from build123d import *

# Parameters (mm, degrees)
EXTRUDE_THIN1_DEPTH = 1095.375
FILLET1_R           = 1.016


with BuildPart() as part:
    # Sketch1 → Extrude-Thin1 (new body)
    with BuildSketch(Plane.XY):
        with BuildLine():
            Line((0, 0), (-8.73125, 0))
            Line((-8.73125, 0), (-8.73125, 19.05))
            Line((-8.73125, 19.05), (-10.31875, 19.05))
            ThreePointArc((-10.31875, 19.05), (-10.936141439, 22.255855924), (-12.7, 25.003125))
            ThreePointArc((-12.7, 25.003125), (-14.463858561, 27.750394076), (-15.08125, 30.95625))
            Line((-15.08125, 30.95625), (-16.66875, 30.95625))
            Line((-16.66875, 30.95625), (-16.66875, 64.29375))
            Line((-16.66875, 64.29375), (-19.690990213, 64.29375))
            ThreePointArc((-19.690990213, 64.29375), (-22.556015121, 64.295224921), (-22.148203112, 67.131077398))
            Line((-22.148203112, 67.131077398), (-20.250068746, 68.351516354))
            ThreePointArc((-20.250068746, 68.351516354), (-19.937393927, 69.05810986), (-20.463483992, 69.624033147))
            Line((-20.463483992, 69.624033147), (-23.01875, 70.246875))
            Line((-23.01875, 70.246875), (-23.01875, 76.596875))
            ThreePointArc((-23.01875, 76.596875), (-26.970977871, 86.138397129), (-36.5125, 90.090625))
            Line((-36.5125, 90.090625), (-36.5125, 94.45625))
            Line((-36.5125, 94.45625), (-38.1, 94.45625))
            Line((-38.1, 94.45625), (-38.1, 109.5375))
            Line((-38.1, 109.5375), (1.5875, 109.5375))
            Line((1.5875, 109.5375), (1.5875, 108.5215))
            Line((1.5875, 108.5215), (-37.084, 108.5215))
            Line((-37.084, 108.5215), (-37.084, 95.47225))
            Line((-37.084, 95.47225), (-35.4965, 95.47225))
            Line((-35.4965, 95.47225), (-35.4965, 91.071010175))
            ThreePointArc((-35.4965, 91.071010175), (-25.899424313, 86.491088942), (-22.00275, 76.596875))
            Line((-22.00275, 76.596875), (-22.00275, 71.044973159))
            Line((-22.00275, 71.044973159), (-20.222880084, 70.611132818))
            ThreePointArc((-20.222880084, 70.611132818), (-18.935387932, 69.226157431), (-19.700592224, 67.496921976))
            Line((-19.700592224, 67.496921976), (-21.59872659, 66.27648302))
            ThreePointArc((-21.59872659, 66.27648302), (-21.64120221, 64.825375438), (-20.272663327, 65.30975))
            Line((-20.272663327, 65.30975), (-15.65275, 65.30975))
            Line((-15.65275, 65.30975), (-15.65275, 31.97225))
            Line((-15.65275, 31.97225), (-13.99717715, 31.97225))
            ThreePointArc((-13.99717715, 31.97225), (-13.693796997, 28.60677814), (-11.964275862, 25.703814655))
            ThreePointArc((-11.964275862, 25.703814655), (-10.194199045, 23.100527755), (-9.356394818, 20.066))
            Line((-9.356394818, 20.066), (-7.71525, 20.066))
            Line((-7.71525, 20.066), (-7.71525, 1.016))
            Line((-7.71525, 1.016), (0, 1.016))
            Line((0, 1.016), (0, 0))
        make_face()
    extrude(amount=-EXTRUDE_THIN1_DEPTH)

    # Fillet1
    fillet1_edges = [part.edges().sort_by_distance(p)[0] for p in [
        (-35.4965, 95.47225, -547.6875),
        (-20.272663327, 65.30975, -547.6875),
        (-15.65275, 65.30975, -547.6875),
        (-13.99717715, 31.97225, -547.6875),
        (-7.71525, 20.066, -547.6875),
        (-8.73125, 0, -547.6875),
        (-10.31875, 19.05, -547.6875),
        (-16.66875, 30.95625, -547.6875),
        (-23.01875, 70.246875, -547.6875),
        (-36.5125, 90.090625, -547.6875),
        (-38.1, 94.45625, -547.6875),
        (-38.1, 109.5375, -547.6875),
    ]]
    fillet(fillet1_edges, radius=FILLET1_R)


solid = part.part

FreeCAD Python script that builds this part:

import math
import FreeCAD as App
import Part
import Sketcher
from FreeCAD import Vector
Q = App.Units.Quantity


def edges_at(feature, points):
    """Names of the edges that pass closest to the given points."""
    edges = feature.Shape.Edges
    near = lambda p: min(range(len(edges)), key=lambda i: edges[i].distToShape(Part.Vertex(*p))[0])
    return sorted({f"Edge{near(p) + 1}" for p in points})

doc = App.newDocument("Part")
params = doc.addObject("Spreadsheet::Sheet", "Params")
for row, (alias, value) in enumerate([
    ("sketch1_radius", "0.53125 in"),
    ("sketch1_height", "0.04 in"),
    ("sketch1_height2", "0.75 in"),
    ("sketch1_height3", "0.25 in"),
    ("sketch1_width", "0.34375 in"),
    ("pad1_length", "43.125 in"),
    ("fillet_radius", "0.04 in"),
], start=1):
    params.set(f"A{row}", alias)
    params.set(f"B{row}", "=" + value)
    params.setAlias(f"B{row}", alias)

body = doc.addObject("PartDesign::Body", "Body")

sketch1 = doc.addObject("Sketcher::SketchObject", "Sketch")
body.addObject(sketch1)
sketch1.AttachmentSupport = (doc.XY_Plane, [""])
sketch1.MapMode = "FlatFace"
sketch1.addGeometry(Part.LineSegment(Vector(-8.7, 0, 0), Vector(0, 0, 0)), False)
sketch1.addGeometry(Part.LineSegment(Vector(0, 0, 0), Vector(0, 1, 0)), False)
sketch1.addGeometry(Part.LineSegment(Vector(0, 1, 0), Vector(-7.7, 1, 0)), False)
sketch1.addGeometry(Part.LineSegment(Vector(-7.7, 1, 0), Vector(-7.7, 20.1, 0)), False)
sketch1.addGeometry(Part.LineSegment(Vector(-7.7, 20.1, 0), Vector(-9.4, 20.1, 0)), False)
sketch1.addGeometry(Part.ArcOfCircle(Part.Circle(Vector(-19, 19.1, 0), Vector(0, 0, 1), 9.6), math.radians(6), math.radians(44)), False)
sketch1.addGeometry(Part.ArcOfCircle(Part.Circle(Vector(-6.4, 31, 0), Vector(0, 0, 1), 7.6), math.radians(172), math.radians(224)), False)
sketch1.addGeometry(Part.LineSegment(Vector(-14, 32, 0), Vector(-15.7, 32, 0)), False)
sketch1.addGeometry(Part.LineSegment(Vector(-15.7, 32, 0), Vector(-15.7, 65.3, 0)), False)
sketch1.addGeometry(Part.LineSegment(Vector(-15.7, 65.3, 0), Vector(-20.3, 65.3, 0)), False)
sketch1.addGeometry(Part.ArcOfCircle(Part.Circle(Vector(-21.1, 65.5, 0), Vector(0, 0, 1), 0.9), math.radians(123), math.radians(345)), False)
sketch1.addGeometry(Part.LineSegment(Vector(-21.6, 66.3, 0), Vector(-19.7, 67.5, 0)), False)
sketch1.addGeometry(Part.ArcOfCircle(Part.Circle(Vector(-20.6, 68.9, 0), Vector(0, 0, 1), 1.7), math.radians(-57), math.radians(76)), False)
sketch1.addGeometry(Part.LineSegment(Vector(-20.2, 70.6, 0), Vector(-22, 71, 0)), False)
sketch1.addGeometry(Part.LineSegment(Vector(-22, 71, 0), Vector(-22, 76.6, 0)), False)
sketch1.addGeometry(Part.ArcOfCircle(Part.Circle(Vector(-36.5, 76.6, 0), Vector(0, 0, 1), 14.5), math.radians(0), math.radians(86)), False)
sketch1.addGeometry(Part.LineSegment(Vector(-35.5, 91.1, 0), Vector(-35.5, 95.5, 0)), False)
sketch1.addGeometry(Part.LineSegment(Vector(-35.5, 95.5, 0), Vector(-37.1, 95.5, 0)), False)
sketch1.addGeometry(Part.LineSegment(Vector(-37.1, 95.5, 0), Vector(-37.1, 108.5, 0)), False)
sketch1.addGeometry(Part.LineSegment(Vector(-37.1, 108.5, 0), Vector(1.6, 108.5, 0)), False)
sketch1.addGeometry(Part.LineSegment(Vector(1.6, 108.5, 0), Vector(1.6, 109.5, 0)), False)
sketch1.addGeometry(Part.LineSegment(Vector(1.6, 109.5, 0), Vector(-38.1, 109.5, 0)), False)
sketch1.addGeometry(Part.LineSegment(Vector(-38.1, 109.5, 0), Vector(-38.1, 94.5, 0)), False)
sketch1.addGeometry(Part.LineSegment(Vector(-38.1, 94.5, 0), Vector(-36.5, 94.5, 0)), False)
sketch1.addGeometry(Part.LineSegment(Vector(-36.5, 94.5, 0), Vector(-36.5, 90.1, 0)), False)
sketch1.addGeometry(Part.ArcOfCircle(Part.Circle(Vector(-36.5, 76.6, 0), Vector(0, 0, 1), 13.5), math.radians(0), math.radians(90)), False)
sketch1.addGeometry(Part.LineSegment(Vector(-23, 76.6, 0), Vector(-23, 70.2, 0)), False)
sketch1.addGeometry(Part.LineSegment(Vector(-23, 70.2, 0), Vector(-20.5, 69.6, 0)), False)
sketch1.addGeometry(Part.ArcOfCircle(Part.Circle(Vector(-20.6, 68.9, 0), Vector(0, 0, 1), 0.7), math.radians(-57), math.radians(76)), False)
sketch1.addGeometry(Part.LineSegment(Vector(-20.3, 68.4, 0), Vector(-22.1, 67.1, 0)), False)
sketch1.addGeometry(Part.ArcOfCircle(Part.Circle(Vector(-21.1, 65.5, 0), Vector(0, 0, 1), 1.9), math.radians(123), math.radians(319)), False)
sketch1.addGeometry(Part.LineSegment(Vector(-19.7, 64.3, 0), Vector(-16.7, 64.3, 0)), False)
sketch1.addGeometry(Part.LineSegment(Vector(-16.7, 64.3, 0), Vector(-16.7, 31, 0)), False)
sketch1.addGeometry(Part.LineSegment(Vector(-16.7, 31, 0), Vector(-15.1, 31, 0)), False)
sketch1.addGeometry(Part.ArcOfCircle(Part.Circle(Vector(-6.4, 31, 0), Vector(0, 0, 1), 8.6), math.radians(180), math.radians(224)), False)
sketch1.addGeometry(Part.ArcOfCircle(Part.Circle(Vector(-19, 19.1, 0), Vector(0, 0, 1), 8.6), math.radians(0), math.radians(44)), False)
sketch1.addGeometry(Part.LineSegment(Vector(-10.3, 19.1, 0), Vector(-8.7, 19.1, 0)), False)
sketch1.addGeometry(Part.LineSegment(Vector(-8.7, 19.1, 0), Vector(-8.7, 0, 0)), False)
sketch1.addConstraint(Sketcher.Constraint("Coincident", 0, 2, 1, 1))
sketch1.addConstraint(Sketcher.Constraint("Coincident", 1, 2, 2, 1))
sketch1.addConstraint(Sketcher.Constraint("Coincident", 2, 2, 3, 1))
sketch1.addConstraint(Sketcher.Constraint("Coincident", 3, 2, 4, 1))
sketch1.addConstraint(Sketcher.Constraint("Coincident", 4, 2, 5, 1))
sketch1.addConstraint(Sketcher.Constraint("Tangent", 5, 2, 6, 2))
sketch1.addConstraint(Sketcher.Constraint("Coincident", 6, 1, 7, 1))
sketch1.addConstraint(Sketcher.Constraint("Coincident", 7, 2, 8, 1))
sketch1.addConstraint(Sketcher.Constraint("Coincident", 8, 2, 9, 1))
sketch1.addConstraint(Sketcher.Constraint("Coincident", 9, 2, 10, 2))
sketch1.addConstraint(Sketcher.Constraint("Tangent", 10, 1, 11, 1))
sketch1.addConstraint(Sketcher.Constraint("Tangent", 11, 2, 12, 1))
sketch1.addConstraint(Sketcher.Constraint("Tangent", 12, 2, 13, 1))
sketch1.addConstraint(Sketcher.Constraint("Coincident", 13, 2, 14, 1))
sketch1.addConstraint(Sketcher.Constraint("Tangent", 14, 2, 15, 1))
sketch1.addConstraint(Sketcher.Constraint("Coincident", 15, 2, 16, 1))
sketch1.addConstraint(Sketcher.Constraint("Coincident", 16, 2, 17, 1))
sketch1.addConstraint(Sketcher.Constraint("Coincident", 17, 2, 18, 1))
sketch1.addConstraint(Sketcher.Constraint("Coincident", 18, 2, 19, 1))
sketch1.addConstraint(Sketcher.Constraint("Coincident", 19, 2, 20, 1))
sketch1.addConstraint(Sketcher.Constraint("Coincident", 20, 2, 21, 1))
sketch1.addConstraint(Sketcher.Constraint("Coincident", 21, 2, 22, 1))
sketch1.addConstraint(Sketcher.Constraint("Coincident", 22, 2, 23, 1))
sketch1.addConstraint(Sketcher.Constraint("Coincident", 23, 2, 24, 1))
sketch1.addConstraint(Sketcher.Constraint("Coincident", 24, 2, 25, 2))
sketch1.addConstraint(Sketcher.Constraint("Tangent", 25, 1, 26, 1))
sketch1.addConstraint(Sketcher.Constraint("Coincident", 26, 2, 27, 1))
sketch1.addConstraint(Sketcher.Constraint("Tangent", 27, 2, 28, 2))
sketch1.addConstraint(Sketcher.Constraint("Tangent", 28, 1, 29, 1))
sketch1.addConstraint(Sketcher.Constraint("Tangent", 29, 2, 30, 1))
sketch1.addConstraint(Sketcher.Constraint("Coincident", 30, 2, 31, 1))
sketch1.addConstraint(Sketcher.Constraint("Coincident", 31, 2, 32, 1))
sketch1.addConstraint(Sketcher.Constraint("Coincident", 32, 2, 33, 1))
sketch1.addConstraint(Sketcher.Constraint("Coincident", 33, 2, 34, 1))
sketch1.addConstraint(Sketcher.Constraint("Tangent", 34, 2, 35, 2))
sketch1.addConstraint(Sketcher.Constraint("Coincident", 35, 1, 36, 1))
sketch1.addConstraint(Sketcher.Constraint("Coincident", 36, 2, 37, 1))
sketch1.addConstraint(Sketcher.Constraint("Coincident", 37, 2, 0, 1))
sketch1.addConstraint(Sketcher.Constraint("Horizontal", 0))
sketch1.addConstraint(Sketcher.Constraint("Vertical", 1))
sketch1.addConstraint(Sketcher.Constraint("Horizontal", 2))
sketch1.addConstraint(Sketcher.Constraint("Vertical", 3))
sketch1.addConstraint(Sketcher.Constraint("Horizontal", 4))
sketch1.addConstraint(Sketcher.Constraint("Horizontal", 7))
sketch1.addConstraint(Sketcher.Constraint("Vertical", 8))
sketch1.addConstraint(Sketcher.Constraint("Horizontal", 9))
sketch1.addConstraint(Sketcher.Constraint("Vertical", 14))
sketch1.addConstraint(Sketcher.Constraint("Vertical", 16))
sketch1.addConstraint(Sketcher.Constraint("Horizontal", 17))
sketch1.addConstraint(Sketcher.Constraint("Vertical", 18))
sketch1.addConstraint(Sketcher.Constraint("Horizontal", 19))
sketch1.addConstraint(Sketcher.Constraint("Vertical", 20))
sketch1.addConstraint(Sketcher.Constraint("Horizontal", 21))
sketch1.addConstraint(Sketcher.Constraint("Vertical", 22))
sketch1.addConstraint(Sketcher.Constraint("Horizontal", 23))
sketch1.addConstraint(Sketcher.Constraint("Vertical", 24))
sketch1.addConstraint(Sketcher.Constraint("Vertical", 26))
sketch1.addConstraint(Sketcher.Constraint("Horizontal", 31))
sketch1.addConstraint(Sketcher.Constraint("Vertical", 32))
sketch1.addConstraint(Sketcher.Constraint("Horizontal", 33))
sketch1.addConstraint(Sketcher.Constraint("Horizontal", 36))
sketch1.addConstraint(Sketcher.Constraint("Vertical", 37))
sketch1.addConstraint(Sketcher.Constraint("Coincident", 0, 2, -1, 1))
sketch1.addConstraint(Sketcher.Constraint("Coincident", 25, 3, 15, 3))
sketch1.addConstraint(Sketcher.Constraint("Coincident", 28, 3, 12, 3))
sketch1.addConstraint(Sketcher.Constraint("Coincident", 30, 3, 10, 3))
sketch1.addConstraint(Sketcher.Constraint("Coincident", 34, 3, 6, 3))
sketch1.addConstraint(Sketcher.Constraint("Coincident", 35, 3, 5, 3))
sketch1.addConstraint(Sketcher.Constraint("Equal", 34, 35))
sketch1.addConstraint(Sketcher.Constraint("Parallel", 13, 27))
sketch1.addConstraint(Sketcher.Constraint("Parallel", 11, 29))
sketch1.addConstraint(Sketcher.Constraint("Horizontal", 34, 3, 32, 2))
sketch1.addConstraint(Sketcher.Constraint("Horizontal", 5, 3, 35, 1))
sketch1.addConstraint(Sketcher.Constraint("Vertical", 25, 3, 23, 2))
sketch1.addConstraint(Sketcher.Constraint("Equal", 17, 23))
sketch1.addConstraint(Sketcher.Constraint("Equal", 23, 33))
sketch1.addConstraint(Sketcher.Constraint("Equal", 33, 36))
sketch1.addConstraint(Sketcher.Constraint("Equal", 1, 20))
sketch1.addConstraint(Sketcher.Constraint("Equal", 8, 32))
sketch1.addConstraint(Sketcher.Constraint("Equal", 3, 37))
sketch1.addConstraint(Sketcher.Constraint("Radius", 25, Q("0.53125 in")))
sketch1.addConstraint(Sketcher.Constraint("DistanceY", 1, 1, 1, 2, Q("0.04 in")))
sketch1.addConstraint(Sketcher.Constraint("DistanceY", 3, 1, 3, 2, Q("0.75 in")))
sketch1.addConstraint(Sketcher.Constraint("DistanceY", 26, 2, 26, 1, Q("0.25 in")))
sketch1.addConstraint(Sketcher.Constraint("DistanceX", 21, 2, -1, 1, Q("1.5 in")))
sketch1.addConstraint(Sketcher.Constraint("DistanceX", 34, 2, -1, 1, Q("0.5 in")))
sketch1.addConstraint(Sketcher.Constraint("DistanceX", 0, 1, 0, 2, Q("0.34375 in")))
sketch1.addConstraint(Sketcher.Constraint("DistanceX", 17, 2, 17, 1, Q("0.0625 in")))
sketch1.addConstraint(Sketcher.Constraint("DistanceX", 21, 2, 21, 1, Q("1.5625 in")))
sketch1.addConstraint(Sketcher.Constraint("DistanceY", 8, 1, 8, 2, Q("1.3125 in")))
sketch1.addConstraint(Sketcher.Constraint("DistanceY", 22, 2, 22, 1, Q("0.59375 in")))
sketch1.addConstraint(Sketcher.Constraint("DistanceY", 24, 2, 24, 1, Q("0.171875 in")))
sketch1.addConstraint(Sketcher.Constraint("DistanceX", 17, 2, -1, 1, Q("1.46 in")))
sketch1.addConstraint(Sketcher.Constraint("DistanceY", 34, 3, 6, 1, Q("0.04 in")))
sketch1.addConstraint(Sketcher.Constraint("DistanceY", 22, 2, 17, 2, Q("0.04 in")))
sketch1.addConstraint(Sketcher.Constraint("DistanceX", 25, 1, 14, 2, Q("0.04 in")))
sketch1.addConstraint(Sketcher.Constraint("DistanceX", 31, 2, 8, 2, Q("0.04 in")))
sketch1.addConstraint(Sketcher.Constraint("DistanceX", 36, 2, 3, 2, Q("0.04 in")))
sketch1.addConstraint(Sketcher.Constraint("DistanceY", -1, 1, 6, 3, Q("1.21875 in")))
sketch1.addConstraint(Sketcher.Constraint("DistanceY", -1, 1, 15, 3, Q("3.015625 in")))
sketch1.addConstraint(Sketcher.Constraint("Radius", 5, Q("9.648031 mm")))
sketch1.addConstraint(Sketcher.Constraint("DistanceY", 14, 1, 14, 2, Q("5.551902 mm")))
sketch1.addConstraint(Sketcher.Constraint("Radius", 10, Q("0.879887 mm")))
sketch1.addConstraint(Sketcher.Constraint("Radius", 12, Q("1.718004 mm")))
sketch1.addConstraint(Sketcher.Constraint("Radius", 28, Q("0.702004 mm")))
sketch1.addConstraint(Sketcher.Constraint("DistanceX", 31, 1, 31, 2, Q("3.02224 mm")))
sketch1.addConstraint(Sketcher.Constraint("DistanceX", 10, 3, 9, 2, Q("0.8502 mm")))
sketch1.addConstraint(Sketcher.Constraint("DistanceY", 10, 3, 29, 2, Q("1.594699 mm")))
sketch1.setExpression("Constraints[80]", "Params.sketch1_radius")
sketch1.setExpression("Constraints[81]", "Params.sketch1_height")
sketch1.setExpression("Constraints[82]", "Params.sketch1_height2")
sketch1.setExpression("Constraints[83]", "Params.sketch1_height3")
sketch1.setExpression("Constraints[86]", "Params.sketch1_width")
pad1 = doc.addObject("PartDesign::Pad", "Pad")
body.addObject(pad1)
pad1.Profile = sketch1
pad1.setExpression("Length", "Params.pad1_length")
pad1.Reversed = True
doc.recompute()

fillet = doc.addObject("PartDesign::Fillet", "Fillet")
body.addObject(fillet)
fillet.Base = (pad1, edges_at(pad1, [
    (-35.496, 95.472, -547.688),
    (-20.273, 65.31, -547.688),
    (-15.653, 65.31, -547.688),
    (-13.997, 31.972, -547.688),
    (-7.715, 20.066, -547.688),
    (-8.731, 0, -547.688),
    (-10.319, 19.05, -547.688),
    (-16.669, 30.956, -547.688),
    (-23.019, 70.247, -547.688),
    (-36.513, 90.091, -547.688),
    (-38.1, 94.456, -547.688),
    (-38.1, 109.537, -547.688),
]))
fillet.setExpression("Radius", "Params.fillet_radius")

doc.recompute()
